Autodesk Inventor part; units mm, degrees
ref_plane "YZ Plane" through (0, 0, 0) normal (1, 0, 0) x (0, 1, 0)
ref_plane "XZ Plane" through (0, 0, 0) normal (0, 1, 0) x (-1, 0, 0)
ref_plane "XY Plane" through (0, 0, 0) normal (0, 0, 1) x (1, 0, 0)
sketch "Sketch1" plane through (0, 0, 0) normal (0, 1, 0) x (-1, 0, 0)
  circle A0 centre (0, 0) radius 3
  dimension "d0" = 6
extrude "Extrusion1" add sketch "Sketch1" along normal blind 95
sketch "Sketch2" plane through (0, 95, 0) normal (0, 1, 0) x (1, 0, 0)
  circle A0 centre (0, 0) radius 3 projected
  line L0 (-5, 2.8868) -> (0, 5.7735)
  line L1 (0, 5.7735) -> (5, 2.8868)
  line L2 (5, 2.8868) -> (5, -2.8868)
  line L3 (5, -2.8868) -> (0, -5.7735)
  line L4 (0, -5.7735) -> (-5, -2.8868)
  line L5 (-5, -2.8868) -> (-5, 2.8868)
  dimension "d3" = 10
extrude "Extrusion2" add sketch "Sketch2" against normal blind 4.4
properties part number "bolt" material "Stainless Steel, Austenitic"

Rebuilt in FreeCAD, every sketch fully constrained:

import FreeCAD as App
import Part
import Sketcher
from FreeCAD import Vector
Q = App.Units.Quantity

doc = App.newDocument("Part")
body = doc.addObject("PartDesign::Body", "Body")

sketch1 = body.newObject("Sketcher::SketchObject", "Sketch")
sketch1.AttachmentSupport = (doc.getObject("XZ_Plane"), [""])
sketch1.MapMode = "FlatFace"
sketch1.addGeometry(Part.Circle(Vector(0, 0, 0), Vector(0, 0, 1), 3), False)
sketch1.addConstraint(Sketcher.Constraint("Coincident", 0, 3, -1, 1))
sketch1.addConstraint(Sketcher.Constraint("Diameter", 0, Q("6 mm")))
pad1 = body.newObject("PartDesign::Pad", "Pad")
pad1.Profile = sketch1
pad1.Length = 95
pad1.Reversed = True

sketch2 = body.newObject("Sketcher::SketchObject", "Sketch001")
sketch2.AttachmentSupport = (doc.getObject("XZ_Plane"), [""])
sketch2.MapMode = "FlatFace"
sketch2.AttachmentOffset = App.Placement(Vector(0, 0, -95), App.Rotation())
sketch2.addGeometry(Part.LineSegment(Vector(0, -5.7735, 0), Vector(-5, -2.8868, 0)), False)
sketch2.addGeometry(Part.LineSegment(Vector(-5, -2.8868, 0), Vector(-5, 2.8868, 0)), False)
sketch2.addGeometry(Part.LineSegment(Vector(-5, 2.8868, 0), Vector(0, 5.7735, 0)), False)
sketch2.addGeometry(Part.LineSegment(Vector(0, 5.7735, 0), Vector(5, 2.8868, 0)), False)
sketch2.addGeometry(Part.LineSegment(Vector(5, 2.8868, 0), Vector(5, -2.8868, 0)), False)
sketch2.addGeometry(Part.LineSegment(Vector(5, -2.8868, 0), Vector(0, -5.7735, 0)), False)
sketch2.addGeometry(Part.Circle(Vector(0, 0, 0), Vector(0, 0, 1), 3), False)
sketch2.addConstraint(Sketcher.Constraint("Coincident", 0, 2, 1, 1))
sketch2.addConstraint(Sketcher.Constraint("Coincident", 1, 2, 2, 1))
sketch2.addConstraint(Sketcher.Constraint("Coincident", 2, 2, 3, 1))
sketch2.addConstraint(Sketcher.Constraint("Coincident", 3, 2, 4, 1))
sketch2.addConstraint(Sketcher.Constraint("Coincident", 4, 2, 5, 1))
sketch2.addConstraint(Sketcher.Constraint("Coincident", 5, 2, 0, 1))
sketch2.addConstraint(Sketcher.Constraint("Vertical", 1))
sketch2.addConstraint(Sketcher.Constraint("Vertical", 4))
sketch2.addConstraint(Sketcher.Constraint("Coincident", 6, 3, -1, 1))
sketch2.addConstraint(Sketcher.Constraint("Symmetric", 0, 2, 3, 2, -1, 1))
sketch2.addConstraint(Sketcher.Constraint("Symmetric", 2, 2, 5, 2, -1, 1))
sketch2.addConstraint(Sketcher.Constraint("PointOnObject", 2, 2, -2))
sketch2.addConstraint(Sketcher.Constraint("Parallel", 2, 5))
sketch2.addConstraint(Sketcher.Constraint("Horizontal", 1, 2, 3, 2))
sketch2.addConstraint(Sketcher.Constraint("Diameter", 6, Q("6 mm")))
sketch2.addConstraint(Sketcher.Constraint("DistanceX", 1, 2, 3, 2, Q("10 mm")))
sketch2.addConstraint(Sketcher.Constraint("Angle", 0, Q("150.0004 deg")))
sketch2.addConstraint(Sketcher.Constraint("DistanceY", 1, 1, 1, 2, Q("5.7736 mm")))
pad2 = body.newObject("PartDesign::Pad", "Pad001")
pad2.Profile = sketch2
pad2.Length = 4.4

doc.recompute()
